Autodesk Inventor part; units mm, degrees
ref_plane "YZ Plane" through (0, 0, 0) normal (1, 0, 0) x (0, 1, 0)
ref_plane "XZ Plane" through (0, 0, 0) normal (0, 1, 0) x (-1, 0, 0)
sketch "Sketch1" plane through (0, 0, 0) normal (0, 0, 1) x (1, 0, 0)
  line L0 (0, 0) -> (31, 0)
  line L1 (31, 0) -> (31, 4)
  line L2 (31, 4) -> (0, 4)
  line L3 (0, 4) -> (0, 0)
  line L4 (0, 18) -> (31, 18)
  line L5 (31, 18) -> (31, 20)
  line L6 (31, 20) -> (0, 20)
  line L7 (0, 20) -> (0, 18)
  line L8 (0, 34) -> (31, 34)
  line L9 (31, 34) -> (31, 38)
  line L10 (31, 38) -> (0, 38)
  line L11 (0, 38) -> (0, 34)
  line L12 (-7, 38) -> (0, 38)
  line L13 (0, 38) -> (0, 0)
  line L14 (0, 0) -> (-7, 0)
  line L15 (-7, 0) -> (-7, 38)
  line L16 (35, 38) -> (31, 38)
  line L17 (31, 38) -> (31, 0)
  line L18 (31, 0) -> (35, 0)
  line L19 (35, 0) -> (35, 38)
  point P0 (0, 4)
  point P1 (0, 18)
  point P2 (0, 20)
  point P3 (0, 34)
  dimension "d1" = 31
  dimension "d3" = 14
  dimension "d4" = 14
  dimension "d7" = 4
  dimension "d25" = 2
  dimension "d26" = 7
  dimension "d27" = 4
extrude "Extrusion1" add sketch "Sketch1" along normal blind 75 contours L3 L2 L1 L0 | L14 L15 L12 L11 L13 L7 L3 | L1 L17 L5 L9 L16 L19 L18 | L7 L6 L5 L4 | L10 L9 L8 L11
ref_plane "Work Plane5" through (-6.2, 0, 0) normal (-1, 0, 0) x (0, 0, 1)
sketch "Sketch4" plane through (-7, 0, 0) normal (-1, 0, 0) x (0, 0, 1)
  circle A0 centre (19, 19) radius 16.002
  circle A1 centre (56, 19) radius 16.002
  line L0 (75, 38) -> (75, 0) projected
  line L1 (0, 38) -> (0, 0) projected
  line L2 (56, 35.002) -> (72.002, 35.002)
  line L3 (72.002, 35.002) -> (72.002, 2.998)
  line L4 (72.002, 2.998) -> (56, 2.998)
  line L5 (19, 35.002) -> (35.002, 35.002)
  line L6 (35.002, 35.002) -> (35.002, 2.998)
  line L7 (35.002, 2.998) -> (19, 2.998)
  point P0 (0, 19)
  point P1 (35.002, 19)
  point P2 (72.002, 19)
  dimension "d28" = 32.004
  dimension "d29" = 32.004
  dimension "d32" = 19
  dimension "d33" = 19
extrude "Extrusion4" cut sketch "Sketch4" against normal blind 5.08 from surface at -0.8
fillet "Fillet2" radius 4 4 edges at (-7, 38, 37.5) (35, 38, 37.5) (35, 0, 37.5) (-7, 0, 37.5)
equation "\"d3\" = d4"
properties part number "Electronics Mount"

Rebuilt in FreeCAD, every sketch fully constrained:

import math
import FreeCAD as App
import Part
import Sketcher

V = App.Vector
Q = App.Units.Quantity


def edges_at(feature, points):
    """Names of the edges that pass closest to the given points."""
    edges = feature.Shape.Edges
    near = lambda p: min(range(len(edges)), key=lambda i: edges[i].distToShape(Part.Vertex(*p))[0])
    return sorted({f"Edge{near(p) + 1}" for p in points})

doc = App.newDocument("Part")
params = doc.addObject("Spreadsheet::Sheet", "Params")
for row, (alias, value) in enumerate([
    ("sketch1_width", "31 mm"),
    ("sketch1_height", "14 mm"),
    ("pad1_length", "75 mm"),
    ("pocket1_length", "5.08 mm"),
    ("fillet_radius", "4 mm"),
], start=1):
    params.set(f"A{row}", alias)
    params.set(f"B{row}", "=" + value)
    params.setAlias(f"B{row}", alias)

body = doc.addObject("PartDesign::Body", "Body")

sketch1 = body.newObject("Sketcher::SketchObject", "Sketch")
sketch1.AttachmentSupport = (doc.getObject("XY_Plane"), [""])
sketch1.MapMode = "FlatFace"
sketch1.addGeometry(Part.LineSegment(V(35, 0, 0), V(35, 38, 0)), False)
sketch1.addGeometry(Part.LineSegment(V(35, 38, 0), V(-7, 38, 0)), False)
sketch1.addGeometry(Part.LineSegment(V(-7, 38, 0), V(-7, 0, 0)), False)
sketch1.addGeometry(Part.LineSegment(V(-7, 0, 0), V(35, 0, 0)), False)
sketch1.addGeometry(Part.LineSegment(V(31, 4, 0), V(0, 4, 0)), False)
sketch1.addGeometry(Part.LineSegment(V(0, 4, 0), V(0, 18, 0)), False)
sketch1.addGeometry(Part.LineSegment(V(0, 18, 0), V(31, 18, 0)), False)
sketch1.addGeometry(Part.LineSegment(V(31, 18, 0), V(31, 4, 0)), False)
sketch1.addGeometry(Part.LineSegment(V(0, 20, 0), V(0, 34, 0)), False)
sketch1.addGeometry(Part.LineSegment(V(0, 34, 0), V(31, 34, 0)), False)
sketch1.addGeometry(Part.LineSegment(V(31, 34, 0), V(31, 20, 0)), False)
sketch1.addGeometry(Part.LineSegment(V(31, 20, 0), V(0, 20, 0)), False)
sketch1.addConstraint(Sketcher.Constraint("Coincident", 0, 2, 1, 1))
sketch1.addConstraint(Sketcher.Constraint("Coincident", 1, 2, 2, 1))
sketch1.addConstraint(Sketcher.Constraint("Coincident", 2, 2, 3, 1))
sketch1.addConstraint(Sketcher.Constraint("Coincident", 3, 2, 0, 1))
sketch1.addConstraint(Sketcher.Constraint("Coincident", 4, 2, 5, 1))
sketch1.addConstraint(Sketcher.Constraint("Coincident", 5, 2, 6, 1))
sketch1.addConstraint(Sketcher.Constraint("Coincident", 6, 2, 7, 1))
sketch1.addConstraint(Sketcher.Constraint("Coincident", 7, 2, 4, 1))
sketch1.addConstraint(Sketcher.Constraint("Coincident", 8, 2, 9, 1))
sketch1.addConstraint(Sketcher.Constraint("Coincident", 9, 2, 10, 1))
sketch1.addConstraint(Sketcher.Constraint("Coincident", 10, 2, 11, 1))
sketch1.addConstraint(Sketcher.Constraint("Coincident", 11, 2, 8, 1))
sketch1.addConstraint(Sketcher.Constraint("Vertical", 0))
sketch1.addConstraint(Sketcher.Constraint("Horizontal", 1))
sketch1.addConstraint(Sketcher.Constraint("Vertical", 2))
sketch1.addConstraint(Sketcher.Constraint("Horizontal", 3))
sketch1.addConstraint(Sketcher.Constraint("Horizontal", 4))
sketch1.addConstraint(Sketcher.Constraint("Vertical", 5))
sketch1.addConstraint(Sketcher.Constraint("Horizontal", 6))
sketch1.addConstraint(Sketcher.Constraint("Vertical", 7))
sketch1.addConstraint(Sketcher.Constraint("Vertical", 8))
sketch1.addConstraint(Sketcher.Constraint("Horizontal", 9))
sketch1.addConstraint(Sketcher.Constraint("Vertical", 10))
sketch1.addConstraint(Sketcher.Constraint("Horizontal", 11))
sketch1.addConstraint(Sketcher.Constraint("PointOnObject", 2, 2, -1))
sketch1.addConstraint(Sketcher.Constraint("PointOnObject", 4, 2, -2))
sketch1.addConstraint(Sketcher.Constraint("PointOnObject", 8, 2, -2))
sketch1.addConstraint(Sketcher.Constraint("Vertical", 7, 2, 9, 2))
sketch1.addConstraint(Sketcher.Constraint("Equal", 7, 8))
sketch1.addConstraint(Sketcher.Constraint("DistanceX", 4, 2, 4, 1, Q("31 mm")))
sketch1.addConstraint(Sketcher.Constraint("DistanceY", 5, 1, 5, 2, Q("14 mm")))
sketch1.addConstraint(Sketcher.Constraint("DistanceX", 1, 2, -1, 1, Q("7 mm")))
sketch1.addConstraint(Sketcher.Constraint("DistanceY", -1, 1, 4, 2, Q("4 mm")))
sketch1.addConstraint(Sketcher.Constraint("DistanceX", 6, 2, 3, 2, Q("4 mm")))
sketch1.addConstraint(Sketcher.Constraint("DistanceY", 8, 2, 1, 2, Q("4 mm")))
sketch1.addConstraint(Sketcher.Constraint("DistanceY", 6, 2, 10, 2, Q("2 mm")))
sketch1.setExpression("Constraints[29]", "Params.sketch1_width")
sketch1.setExpression("Constraints[30]", "Params.sketch1_height")
pad1 = body.newObject("PartDesign::Pad", "Pad")
pad1.Profile = sketch1
pad1.setExpression("Length", "Params.pad1_length")

sketch2 = body.newObject("Sketcher::SketchObject", "Sketch001")
sketch2.AttachmentSupport = (doc.getObject("YZ_Plane"), [""])
sketch2.MapMode = "FlatFace"
sketch2.AttachmentOffset = App.Placement(V(0, 0, -6.2), App.Rotation())
sketch2.addGeometry(Part.ArcOfCircle(Part.Circle(V(19, 19, 0), V(0, 0, 1), 16), math.radians(180), math.radians(360)), False)
sketch2.addGeometry(Part.LineSegment(V(3, 19, 0), V(3, 35, 0)), False)
sketch2.addGeometry(Part.LineSegment(V(3, 35, 0), V(35, 35, 0)), False)
sketch2.addGeometry(Part.LineSegment(V(35, 35, 0), V(35, 19, 0)), False)
sketch2.addGeometry(Part.ArcOfCircle(Part.Circle(V(19, 56, 0), V(0, 0, 1), 16), math.radians(180), math.radians(360)), False)
sketch2.addGeometry(Part.LineSegment(V(3, 56, 0), V(3, 72, 0)), False)
sketch2.addGeometry(Part.LineSegment(V(3, 72, 0), V(35, 72, 0)), False)
sketch2.addGeometry(Part.LineSegment(V(35, 72, 0), V(35, 56, 0)), False)
sketch2.addConstraint(Sketcher.Constraint("Tangent", 0, 1, 1, 1))
sketch2.addConstraint(Sketcher.Constraint("Coincident", 1, 2, 2, 1))
sketch2.addConstraint(Sketcher.Constraint("Coincident", 2, 2, 3, 1))
sketch2.addConstraint(Sketcher.Constraint("Tangent", 3, 2, 0, 2))
sketch2.addConstraint(Sketcher.Constraint("Tangent", 4, 1, 5, 1))
sketch2.addConstraint(Sketcher.Constraint("Coincident", 5, 2, 6, 1))
sketch2.addConstraint(Sketcher.Constraint("Coincident", 6, 2, 7, 1))
sketch2.addConstraint(Sketcher.Constraint("Tangent", 7, 2, 4, 2))
sketch2.addConstraint(Sketcher.Constraint("Vertical", 1))
sketch2.addConstraint(Sketcher.Constraint("Horizontal", 2))
sketch2.addConstraint(Sketcher.Constraint("Vertical", 3))
sketch2.addConstraint(Sketcher.Constraint("Vertical", 5))
sketch2.addConstraint(Sketcher.Constraint("Horizontal", 6))
sketch2.addConstraint(Sketcher.Constraint("Vertical", 7))
sketch2.addConstraint(Sketcher.Constraint("Equal", 0, 4))
sketch2.addConstraint(Sketcher.Constraint("Vertical", 0, 3, 4, 3))
sketch2.addConstraint(Sketcher.Constraint("Equal", 3, 5))
sketch2.addConstraint(Sketcher.Constraint("DistanceX", -1, 1, 0, 3, Q("19 mm")))
sketch2.addConstraint(Sketcher.Constraint("DistanceY", -1, 1, 0, 3, Q("19 mm")))
sketch2.addConstraint(Sketcher.Constraint("Radius", 0, Q("16.002 mm")))
sketch2.addConstraint(Sketcher.Constraint("DistanceY", -1, 1, 4, 3, Q("56 mm")))
sketch2.addConstraint(Sketcher.Constraint("DistanceY", 1, 1, 1, 2, Q("16.002 mm")))
pocket1 = body.newObject("PartDesign::Pocket", "Pocket")
pocket1.Profile = sketch2
pocket1.setExpression("Length", "Params.pocket1_length")
pocket1.Reversed = True
doc.recompute()

fillet = body.newObject("PartDesign::Fillet", "Fillet")
fillet.Base = (pocket1, edges_at(pocket1, [
    (-7, 38, 37.5),
    (35, 38, 37.5),
    (35, 0, 37.5),
    (-7, 0, 37.5),
]))
fillet.setExpression("Radius", "Params.fillet_radius")

doc.recompute()
